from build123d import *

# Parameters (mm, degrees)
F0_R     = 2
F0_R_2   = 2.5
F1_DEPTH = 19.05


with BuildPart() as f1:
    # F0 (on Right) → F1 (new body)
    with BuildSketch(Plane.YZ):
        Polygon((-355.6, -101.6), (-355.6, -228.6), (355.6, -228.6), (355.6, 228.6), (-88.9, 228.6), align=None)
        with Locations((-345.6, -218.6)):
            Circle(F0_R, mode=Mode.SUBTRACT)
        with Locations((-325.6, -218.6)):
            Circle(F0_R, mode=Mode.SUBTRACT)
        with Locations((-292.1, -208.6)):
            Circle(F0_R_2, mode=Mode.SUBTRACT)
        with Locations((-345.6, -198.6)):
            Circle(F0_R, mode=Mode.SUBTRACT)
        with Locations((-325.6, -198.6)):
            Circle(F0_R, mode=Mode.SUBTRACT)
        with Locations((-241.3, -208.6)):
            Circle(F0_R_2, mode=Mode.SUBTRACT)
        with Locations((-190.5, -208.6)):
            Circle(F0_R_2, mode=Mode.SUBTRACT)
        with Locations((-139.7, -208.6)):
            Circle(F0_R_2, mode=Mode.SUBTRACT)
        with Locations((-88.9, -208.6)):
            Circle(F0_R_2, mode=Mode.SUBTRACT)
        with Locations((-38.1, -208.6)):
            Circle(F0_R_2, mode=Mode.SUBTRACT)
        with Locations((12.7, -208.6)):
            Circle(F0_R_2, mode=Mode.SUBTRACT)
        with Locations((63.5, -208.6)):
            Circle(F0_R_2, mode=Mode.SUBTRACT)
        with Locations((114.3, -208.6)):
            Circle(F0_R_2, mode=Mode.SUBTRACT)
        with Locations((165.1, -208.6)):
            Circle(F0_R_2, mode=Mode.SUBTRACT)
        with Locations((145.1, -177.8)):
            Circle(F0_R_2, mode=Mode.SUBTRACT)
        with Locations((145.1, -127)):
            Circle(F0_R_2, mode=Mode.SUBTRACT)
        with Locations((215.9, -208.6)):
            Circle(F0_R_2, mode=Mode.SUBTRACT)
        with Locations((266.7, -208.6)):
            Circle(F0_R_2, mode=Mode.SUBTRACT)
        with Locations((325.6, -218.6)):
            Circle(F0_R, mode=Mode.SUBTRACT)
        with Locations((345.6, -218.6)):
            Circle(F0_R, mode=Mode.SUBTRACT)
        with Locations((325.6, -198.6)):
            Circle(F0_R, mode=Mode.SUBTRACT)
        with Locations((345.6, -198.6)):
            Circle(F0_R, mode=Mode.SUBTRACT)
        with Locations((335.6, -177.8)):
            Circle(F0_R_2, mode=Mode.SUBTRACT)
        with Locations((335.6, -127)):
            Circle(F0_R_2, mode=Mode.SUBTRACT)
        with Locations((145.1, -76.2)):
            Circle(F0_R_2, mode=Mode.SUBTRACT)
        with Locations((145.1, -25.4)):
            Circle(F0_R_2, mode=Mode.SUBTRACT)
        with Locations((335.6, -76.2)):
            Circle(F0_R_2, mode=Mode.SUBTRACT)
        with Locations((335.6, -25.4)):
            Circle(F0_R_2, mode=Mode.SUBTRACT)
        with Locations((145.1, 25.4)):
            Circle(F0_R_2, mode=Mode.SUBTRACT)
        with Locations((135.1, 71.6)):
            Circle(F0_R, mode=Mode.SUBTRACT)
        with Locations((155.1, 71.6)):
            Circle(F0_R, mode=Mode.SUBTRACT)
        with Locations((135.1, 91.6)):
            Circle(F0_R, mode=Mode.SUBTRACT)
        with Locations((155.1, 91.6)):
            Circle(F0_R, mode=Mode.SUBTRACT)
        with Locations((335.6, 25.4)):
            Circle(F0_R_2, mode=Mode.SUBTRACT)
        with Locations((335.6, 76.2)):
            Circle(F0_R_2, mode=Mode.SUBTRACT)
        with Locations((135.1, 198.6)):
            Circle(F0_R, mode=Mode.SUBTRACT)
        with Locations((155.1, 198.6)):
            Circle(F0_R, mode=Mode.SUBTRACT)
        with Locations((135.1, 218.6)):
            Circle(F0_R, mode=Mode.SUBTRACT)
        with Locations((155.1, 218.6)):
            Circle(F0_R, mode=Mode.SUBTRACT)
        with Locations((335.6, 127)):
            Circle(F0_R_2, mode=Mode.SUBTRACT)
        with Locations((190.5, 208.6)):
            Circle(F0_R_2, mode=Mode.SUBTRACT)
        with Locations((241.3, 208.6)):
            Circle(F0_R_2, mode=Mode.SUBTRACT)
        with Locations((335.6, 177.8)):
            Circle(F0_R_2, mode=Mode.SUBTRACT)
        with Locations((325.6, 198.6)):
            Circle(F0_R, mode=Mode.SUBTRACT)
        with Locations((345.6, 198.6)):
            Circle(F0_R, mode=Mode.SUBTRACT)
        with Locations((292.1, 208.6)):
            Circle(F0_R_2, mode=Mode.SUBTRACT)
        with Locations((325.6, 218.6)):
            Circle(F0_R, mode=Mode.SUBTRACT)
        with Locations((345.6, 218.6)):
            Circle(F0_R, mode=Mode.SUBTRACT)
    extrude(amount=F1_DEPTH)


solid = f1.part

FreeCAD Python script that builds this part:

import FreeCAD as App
import Part
import Sketcher

V = App.Vector
Q = App.Units.Quantity


def add_polygon(sketch, points):
    """Adds a closed chain of lines whose ends are joined by coincident constraints."""
    first, n = sketch.GeometryCount, len(points)
    for a, b in zip(points, points[1:] + points[:1]):
        sketch.addGeometry(Part.LineSegment(App.Vector(*a, 0), App.Vector(*b, 0)), False)
    for i in range(n):
        sketch.addConstraint(Sketcher.Constraint("Coincident", first + i, 2, first + (i + 1) % n, 1))

doc = App.newDocument("Part")
body = doc.addObject("PartDesign::Body", "Body")

# Sketch on YZ plane
sketch1 = body.newObject("Sketcher::SketchObject", "Sketch")
sketch1.AttachmentSupport = (doc.getObject("YZ_Plane"), [""])
sketch1.MapMode = "FlatFace"
add_polygon(sketch1, [(-355.6, -101.6), (-355.6, -228.6), (355.6, -228.6), (355.6, 228.6), (-88.9, 228.6)])  # lines 0-4
sketch1.addGeometry(Part.Circle(V(-345.6, -218.6, 0), V(0, 0, 1), 2), False)  # 5
sketch1.addGeometry(Part.Circle(V(-325.6, -218.6, 0), V(0, 0, 1), 2), False)  # 6
sketch1.addGeometry(Part.Circle(V(-345.6, -198.6, 0), V(0, 0, 1), 2), False)  # 7
sketch1.addGeometry(Part.Circle(V(-325.6, -198.6, 0), V(0, 0, 1), 2), False)  # 8
sketch1.addGeometry(Part.Circle(V(-292.1, -208.6, 0), V(0, 0, 1), 2.5), False)  # 9
sketch1.addGeometry(Part.Circle(V(-241.3, -208.6, 0), V(0, 0, 1), 2.5), False)  # 10
sketch1.addGeometry(Part.Circle(V(-190.5, -208.6, 0), V(0, 0, 1), 2.5), False)  # 11
sketch1.addGeometry(Part.Circle(V(-139.7, -208.6, 0), V(0, 0, 1), 2.5), False)  # 12
sketch1.addGeometry(Part.Circle(V(-88.9, -208.6, 0), V(0, 0, 1), 2.5), False)  # 13
sketch1.addGeometry(Part.Circle(V(-38.1, -208.6, 0), V(0, 0, 1), 2.5), False)  # 14
sketch1.addGeometry(Part.Circle(V(12.7, -208.6, 0), V(0, 0, 1), 2.5), False)  # 15
sketch1.addGeometry(Part.Circle(V(63.5, -208.6, 0), V(0, 0, 1), 2.5), False)  # 16
sketch1.addGeometry(Part.Circle(V(114.3, -208.6, 0), V(0, 0, 1), 2.5), False)  # 17
sketch1.addGeometry(Part.Circle(V(165.1, -208.6, 0), V(0, 0, 1), 2.5), False)  # 18
sketch1.addGeometry(Part.Circle(V(145.1, -177.8, 0), V(0, 0, 1), 2.5), False)  # 19
sketch1.addGeometry(Part.Circle(V(145.1, -127, 0), V(0, 0, 1), 2.5), False)  # 20
sketch1.addGeometry(Part.Circle(V(215.9, -208.6, 0), V(0, 0, 1), 2.5), False)  # 21
sketch1.addGeometry(Part.Circle(V(266.7, -208.6, 0), V(0, 0, 1), 2.5), False)  # 22
sketch1.addGeometry(Part.Circle(V(325.6, -218.6, 0), V(0, 0, 1), 2), False)  # 23
sketch1.addGeometry(Part.Circle(V(345.6, -218.6, 0), V(0, 0, 1), 2), False)  # 24
sketch1.addGeometry(Part.Circle(V(325.6, -198.6, 0), V(0, 0, 1), 2), False)  # 25
sketch1.addGeometry(Part.Circle(V(345.6, -198.6, 0), V(0, 0, 1), 2), False)  # 26
sketch1.addGeometry(Part.Circle(V(335.6, -177.8, 0), V(0, 0, 1), 2.5), False)  # 27
sketch1.addGeometry(Part.Circle(V(335.6, -127, 0), V(0, 0, 1), 2.5), False)  # 28
sketch1.addGeometry(Part.Circle(V(145.1, -76.2, 0), V(0, 0, 1), 2.5), False)  # 29
sketch1.addGeometry(Part.Circle(V(145.1, -25.4, 0), V(0, 0, 1), 2.5), False)  # 30
sketch1.addGeometry(Part.Circle(V(335.6, -76.2, 0), V(0, 0, 1), 2.5), False)  # 31
sketch1.addGeometry(Part.Circle(V(335.6, -25.4, 0), V(0, 0, 1), 2.5), False)  # 32
sketch1.addGeometry(Part.Circle(V(145.1, 25.4, 0), V(0, 0, 1), 2.5), False)  # 33
sketch1.addGeometry(Part.Circle(V(135.1, 71.6, 0), V(0, 0, 1), 2), False)  # 34
sketch1.addGeometry(Part.Circle(V(155.1, 71.6, 0), V(0, 0, 1), 2), False)  # 35
sketch1.addGeometry(Part.Circle(V(135.1, 91.6, 0), V(0, 0, 1), 2), False)  # 36
sketch1.addGeometry(Part.Circle(V(155.1, 91.6, 0), V(0, 0, 1), 2), False)  # 37
sketch1.addGeometry(Part.Circle(V(335.6, 25.4, 0), V(0, 0, 1), 2.5), False)  # 38
sketch1.addGeometry(Part.Circle(V(335.6, 76.2, 0), V(0, 0, 1), 2.5), False)  # 39
sketch1.addGeometry(Part.Circle(V(135.1, 198.6, 0), V(0, 0, 1), 2), False)  # 40
sketch1.addGeometry(Part.Circle(V(155.1, 198.6, 0), V(0, 0, 1), 2), False)  # 41
sketch1.addGeometry(Part.Circle(V(135.1, 218.6, 0), V(0, 0, 1), 2), False)  # 42
sketch1.addGeometry(Part.Circle(V(155.1, 218.6, 0), V(0, 0, 1), 2), False)  # 43
sketch1.addGeometry(Part.Circle(V(335.6, 127, 0), V(0, 0, 1), 2.5), False)  # 44
sketch1.addGeometry(Part.Circle(V(190.5, 208.6, 0), V(0, 0, 1), 2.5), False)  # 45
sketch1.addGeometry(Part.Circle(V(241.3, 208.6, 0), V(0, 0, 1), 2.5), False)  # 46
sketch1.addGeometry(Part.Circle(V(335.6, 177.8, 0), V(0, 0, 1), 2.5), False)  # 47
sketch1.addGeometry(Part.Circle(V(292.1, 208.6, 0), V(0, 0, 1), 2.5), False)  # 48
sketch1.addGeometry(Part.Circle(V(325.6, 198.6, 0), V(0, 0, 1), 2), False)  # 49
sketch1.addGeometry(Part.Circle(V(345.6, 198.6, 0), V(0, 0, 1), 2), False)  # 50
sketch1.addGeometry(Part.Circle(V(325.6, 218.6, 0), V(0, 0, 1), 2), False)  # 51
sketch1.addGeometry(Part.Circle(V(345.6, 218.6, 0), V(0, 0, 1), 2), False)  # 52
sketch1.addConstraint([
    Sketcher.Constraint("Vertical", 0),
    Sketcher.Constraint("Horizontal", 1),
    Sketcher.Constraint("Vertical", 2),
    Sketcher.Constraint("Horizontal", 3),
    Sketcher.Constraint("Equal", 5, 6),
    Sketcher.Constraint("Equal", 6, 7),
    Sketcher.Constraint("Equal", 7, 8),
    Sketcher.Constraint("Equal", 9, 10),
    Sketcher.Constraint("Equal", 10, 11),
    Sketcher.Constraint("Equal", 11, 12),
    Sketcher.Constraint("Equal", 12, 13),
    Sketcher.Constraint("Equal", 13, 14),
    Sketcher.Constraint("Equal", 14, 15),
    Sketcher.Constraint("Equal", 15, 16),
    Sketcher.Constraint("Equal", 16, 17),
    Sketcher.Constraint("Equal", 17, 18),
    Sketcher.Constraint("Equal", 18, 19),
    Sketcher.Constraint("Equal", 19, 20),
    Sketcher.Constraint("Equal", 20, 21),
    Sketcher.Constraint("Equal", 21, 22),
    Sketcher.Constraint("Equal", 8, 23),
    Sketcher.Constraint("Equal", 23, 24),
    Sketcher.Constraint("Equal", 24, 25),
    Sketcher.Constraint("Equal", 25, 26),
    Sketcher.Constraint("Equal", 22, 27),
    Sketcher.Constraint("Equal", 27, 28),
    Sketcher.Constraint("Equal", 28, 29),
    Sketcher.Constraint("Equal", 29, 30),
    Sketcher.Constraint("Equal", 30, 31),
    Sketcher.Constraint("Equal", 31, 32),
    Sketcher.Constraint("Equal", 32, 33),
    Sketcher.Constraint("Equal", 26, 34),
    Sketcher.Constraint("Equal", 34, 35),
    Sketcher.Constraint("Equal", 35, 36),
    Sketcher.Constraint("Equal", 36, 37),
    Sketcher.Constraint("Equal", 33, 38),
    Sketcher.Constraint("Equal", 38, 39),
    Sketcher.Constraint("Equal", 37, 40),
    Sketcher.Constraint("Equal", 40, 41),
    Sketcher.Constraint("Equal", 41, 42),
    Sketcher.Constraint("Equal", 42, 43),
    Sketcher.Constraint("Equal", 39, 44),
    Sketcher.Constraint("Equal", 44, 45),
    Sketcher.Constraint("Equal", 45, 46),
    Sketcher.Constraint("Equal", 46, 47),
    Sketcher.Constraint("Equal", 47, 48),
    Sketcher.Constraint("Equal", 43, 49),
    Sketcher.Constraint("Equal", 49, 50),
    Sketcher.Constraint("Equal", 50, 51),
    Sketcher.Constraint("Equal", 51, 52),
    Sketcher.Constraint("Symmetric", 11, 3, 45, 3, -1, 1),
    Sketcher.Constraint("Symmetric", 10, 3, 46, 3, -1, 1),
    Sketcher.Constraint("Symmetric", 9, 3, 48, 3, -1, 1),
    Sketcher.Constraint("Symmetric", 8, 3, 49, 3, -1, 1),
    Sketcher.Constraint("Symmetric", 7, 3, 50, 3, -1, 1),
    Sketcher.Constraint("Symmetric", 6, 3, 51, 3, -1, 1),
    Sketcher.Constraint("Symmetric", 5, 3, 52, 3, -1, 1),
    Sketcher.Constraint("Symmetric", 0, 2, 2, 2, -1, 1),
    Sketcher.Constraint("Symmetric", 6, 3, 23, 3, -2),
    Sketcher.Constraint("Symmetric", 5, 3, 24, 3, -2),
    Sketcher.Constraint("Symmetric", 8, 3, 25, 3, -2),
    Sketcher.Constraint("Symmetric", 7, 3, 26, 3, -2),
    Sketcher.Constraint("Symmetric", 30, 3, 33, 3, -1),
    Sketcher.Constraint("Symmetric", 32, 3, 38, 3, -1),
    Sketcher.Constraint("Symmetric", 31, 3, 39, 3, -1),
    Sketcher.Constraint("Symmetric", 28, 3, 44, 3, -1),
    Sketcher.Constraint("Symmetric", 27, 3, 47, 3, -1),
    Sketcher.Constraint("Horizontal", 5, 3, 6, 3),
    Sketcher.Constraint("Horizontal", 7, 3, 8, 3),
    Sketcher.Constraint("Horizontal", 9, 3, 10, 3),
    Sketcher.Constraint("Horizontal", 10, 3, 11, 3),
    Sketcher.Constraint("Horizontal", 11, 3, 12, 3),
    Sketcher.Constraint("Horizontal", 12, 3, 13, 3),
    Sketcher.Constraint("Horizontal", 13, 3, 14, 3),
    Sketcher.Constraint("Horizontal", 14, 3, 15, 3),
    Sketcher.Constraint("Horizontal", 15, 3, 16, 3),
    Sketcher.Constraint("Horizontal", 16, 3, 17, 3),
    Sketcher.Constraint("Horizontal", 17, 3, 18, 3),
    Sketcher.Constraint("Horizontal", 18, 3, 21, 3),
    Sketcher.Constraint("Horizontal", 21, 3, 22, 3),
    Sketcher.Constraint("Horizontal", 19, 3, 27, 3),
    Sketcher.Constraint("Horizontal", 20, 3, 28, 3),
    Sketcher.Constraint("Horizontal", 29, 3, 31, 3),
    Sketcher.Constraint("Horizontal", 30, 3, 32, 3),
    Sketcher.Constraint("Horizontal", 34, 3, 35, 3),
    Sketcher.Constraint("Horizontal", 36, 3, 37, 3),
    Sketcher.Constraint("Horizontal", 40, 3, 41, 3),
    Sketcher.Constraint("Horizontal", 42, 3, 43, 3),
    Sketcher.Constraint("Horizontal", 41, 3, 49, 3),
    Sketcher.Constraint("Horizontal", 43, 3, 51, 3),
    Sketcher.Constraint("Vertical", 5, 3, 7, 3),
    Sketcher.Constraint("Vertical", 6, 3, 8, 3),
    Sketcher.Constraint("Vertical", 19, 3, 20, 3),
    Sketcher.Constraint("Vertical", 27, 3, 28, 3),
    Sketcher.Constraint("Vertical", 20, 3, 29, 3),
    Sketcher.Constraint("Vertical", 29, 3, 30, 3),
    Sketcher.Constraint("Vertical", 28, 3, 31, 3),
    Sketcher.Constraint("Vertical", 31, 3, 32, 3),
    Sketcher.Constraint("Vertical", 34, 3, 36, 3),
    Sketcher.Constraint("Vertical", 35, 3, 37, 3),
    Sketcher.Constraint("Vertical", 36, 3, 40, 3),
    Sketcher.Constraint("Vertical", 37, 3, 41, 3),
    Sketcher.Constraint("Vertical", 40, 3, 42, 3),
    Sketcher.Constraint("Vertical", 41, 3, 43, 3),
    Sketcher.Constraint("Vertical", 13, 3, 3, 2),
    Sketcher.Constraint("DistanceX", 1, 1, 1, 2, Q("28 in")),
    Sketcher.Constraint("DistanceY", 0, 2, 0, 1, Q("5 in")),
    Sketcher.Constraint("DistanceY", 2, 1, 2, 2, Q("18 in")),
    Sketcher.Constraint("DistanceX", 3, 2, 3, 1, Q("17.5 in")),
    Sketcher.Constraint("DistanceY", 19, 3, -1, 1, Q("7 in")),
    Sketcher.Constraint("DistanceY", 20, 3, -1, 1, Q("5 in")),
    Sketcher.Constraint("DistanceY", 29, 3, -1, 1, Q("3 in")),
    Sketcher.Constraint("DistanceY", 30, 3, -1, 1, Q("1 in")),
    Sketcher.Constraint("DistanceX", 9, 3, 10, 3, Q("2 in")),
    Sketcher.Constraint("DistanceX", 10, 3, 11, 3, Q("2 in")),
    Sketcher.Constraint("DistanceX", 11, 3, 12, 3, Q("2 in")),
    Sketcher.Constraint("DistanceX", 12, 3, 13, 3, Q("2 in")),
    Sketcher.Constraint("DistanceX", 13, 3, 14, 3, Q("2 in")),
    Sketcher.Constraint("DistanceX", 14, 3, 15, 3, Q("2 in")),
    Sketcher.Constraint("DistanceX", 15, 3, 16, 3, Q("2 in")),
    Sketcher.Constraint("DistanceX", 16, 3, 17, 3, Q("2 in")),
    Sketcher.Constraint("DistanceX", 17, 3, 18, 3, Q("2 in")),
    Sketcher.Constraint("DistanceX", 18, 3, 21, 3, Q("2 in")),
    Sketcher.Constraint("DistanceX", 21, 3, 22, 3, Q("2 in")),
    Sketcher.Constraint("DistanceY", 34, 3, 40, 3, Q("5 in")),
    Sketcher.Constraint("DistanceY", 36, 3, 42, 3, Q("5 in")),
    Sketcher.Constraint("DistanceX", 33, 3, 32, 3, Q("7.5 in")),
    Sketcher.Constraint("Diameter", 5, 4.0),
    Sketcher.Constraint("Diameter", 9, 5.0),
    Sketcher.Constraint("DistanceX", 5, 3, -1, 1, 345.6),
    Sketcher.Constraint("DistanceY", 5, 3, -1, 1, 218.6),
    Sketcher.Constraint("DistanceX", 6, 3, -1, 1, 325.6),
    Sketcher.Constraint("DistanceY", 7, 3, -1, 1, 198.6),
    Sketcher.Constraint("DistanceY", 9, 3, -1, 1, 208.6),
    Sketcher.Constraint("DistanceX", -1, 1, 19, 3, 145.1),
    Sketcher.Constraint("DistanceX", -1, 1, 34, 3, 135.1),
    Sketcher.Constraint("DistanceX", -1, 1, 35, 3, 155.1),
])
pad1 = body.newObject("PartDesign::Pad", "Pad")
pad1.Profile = sketch1
pad1.Length = Q("0.75 in")

doc.recompute()
